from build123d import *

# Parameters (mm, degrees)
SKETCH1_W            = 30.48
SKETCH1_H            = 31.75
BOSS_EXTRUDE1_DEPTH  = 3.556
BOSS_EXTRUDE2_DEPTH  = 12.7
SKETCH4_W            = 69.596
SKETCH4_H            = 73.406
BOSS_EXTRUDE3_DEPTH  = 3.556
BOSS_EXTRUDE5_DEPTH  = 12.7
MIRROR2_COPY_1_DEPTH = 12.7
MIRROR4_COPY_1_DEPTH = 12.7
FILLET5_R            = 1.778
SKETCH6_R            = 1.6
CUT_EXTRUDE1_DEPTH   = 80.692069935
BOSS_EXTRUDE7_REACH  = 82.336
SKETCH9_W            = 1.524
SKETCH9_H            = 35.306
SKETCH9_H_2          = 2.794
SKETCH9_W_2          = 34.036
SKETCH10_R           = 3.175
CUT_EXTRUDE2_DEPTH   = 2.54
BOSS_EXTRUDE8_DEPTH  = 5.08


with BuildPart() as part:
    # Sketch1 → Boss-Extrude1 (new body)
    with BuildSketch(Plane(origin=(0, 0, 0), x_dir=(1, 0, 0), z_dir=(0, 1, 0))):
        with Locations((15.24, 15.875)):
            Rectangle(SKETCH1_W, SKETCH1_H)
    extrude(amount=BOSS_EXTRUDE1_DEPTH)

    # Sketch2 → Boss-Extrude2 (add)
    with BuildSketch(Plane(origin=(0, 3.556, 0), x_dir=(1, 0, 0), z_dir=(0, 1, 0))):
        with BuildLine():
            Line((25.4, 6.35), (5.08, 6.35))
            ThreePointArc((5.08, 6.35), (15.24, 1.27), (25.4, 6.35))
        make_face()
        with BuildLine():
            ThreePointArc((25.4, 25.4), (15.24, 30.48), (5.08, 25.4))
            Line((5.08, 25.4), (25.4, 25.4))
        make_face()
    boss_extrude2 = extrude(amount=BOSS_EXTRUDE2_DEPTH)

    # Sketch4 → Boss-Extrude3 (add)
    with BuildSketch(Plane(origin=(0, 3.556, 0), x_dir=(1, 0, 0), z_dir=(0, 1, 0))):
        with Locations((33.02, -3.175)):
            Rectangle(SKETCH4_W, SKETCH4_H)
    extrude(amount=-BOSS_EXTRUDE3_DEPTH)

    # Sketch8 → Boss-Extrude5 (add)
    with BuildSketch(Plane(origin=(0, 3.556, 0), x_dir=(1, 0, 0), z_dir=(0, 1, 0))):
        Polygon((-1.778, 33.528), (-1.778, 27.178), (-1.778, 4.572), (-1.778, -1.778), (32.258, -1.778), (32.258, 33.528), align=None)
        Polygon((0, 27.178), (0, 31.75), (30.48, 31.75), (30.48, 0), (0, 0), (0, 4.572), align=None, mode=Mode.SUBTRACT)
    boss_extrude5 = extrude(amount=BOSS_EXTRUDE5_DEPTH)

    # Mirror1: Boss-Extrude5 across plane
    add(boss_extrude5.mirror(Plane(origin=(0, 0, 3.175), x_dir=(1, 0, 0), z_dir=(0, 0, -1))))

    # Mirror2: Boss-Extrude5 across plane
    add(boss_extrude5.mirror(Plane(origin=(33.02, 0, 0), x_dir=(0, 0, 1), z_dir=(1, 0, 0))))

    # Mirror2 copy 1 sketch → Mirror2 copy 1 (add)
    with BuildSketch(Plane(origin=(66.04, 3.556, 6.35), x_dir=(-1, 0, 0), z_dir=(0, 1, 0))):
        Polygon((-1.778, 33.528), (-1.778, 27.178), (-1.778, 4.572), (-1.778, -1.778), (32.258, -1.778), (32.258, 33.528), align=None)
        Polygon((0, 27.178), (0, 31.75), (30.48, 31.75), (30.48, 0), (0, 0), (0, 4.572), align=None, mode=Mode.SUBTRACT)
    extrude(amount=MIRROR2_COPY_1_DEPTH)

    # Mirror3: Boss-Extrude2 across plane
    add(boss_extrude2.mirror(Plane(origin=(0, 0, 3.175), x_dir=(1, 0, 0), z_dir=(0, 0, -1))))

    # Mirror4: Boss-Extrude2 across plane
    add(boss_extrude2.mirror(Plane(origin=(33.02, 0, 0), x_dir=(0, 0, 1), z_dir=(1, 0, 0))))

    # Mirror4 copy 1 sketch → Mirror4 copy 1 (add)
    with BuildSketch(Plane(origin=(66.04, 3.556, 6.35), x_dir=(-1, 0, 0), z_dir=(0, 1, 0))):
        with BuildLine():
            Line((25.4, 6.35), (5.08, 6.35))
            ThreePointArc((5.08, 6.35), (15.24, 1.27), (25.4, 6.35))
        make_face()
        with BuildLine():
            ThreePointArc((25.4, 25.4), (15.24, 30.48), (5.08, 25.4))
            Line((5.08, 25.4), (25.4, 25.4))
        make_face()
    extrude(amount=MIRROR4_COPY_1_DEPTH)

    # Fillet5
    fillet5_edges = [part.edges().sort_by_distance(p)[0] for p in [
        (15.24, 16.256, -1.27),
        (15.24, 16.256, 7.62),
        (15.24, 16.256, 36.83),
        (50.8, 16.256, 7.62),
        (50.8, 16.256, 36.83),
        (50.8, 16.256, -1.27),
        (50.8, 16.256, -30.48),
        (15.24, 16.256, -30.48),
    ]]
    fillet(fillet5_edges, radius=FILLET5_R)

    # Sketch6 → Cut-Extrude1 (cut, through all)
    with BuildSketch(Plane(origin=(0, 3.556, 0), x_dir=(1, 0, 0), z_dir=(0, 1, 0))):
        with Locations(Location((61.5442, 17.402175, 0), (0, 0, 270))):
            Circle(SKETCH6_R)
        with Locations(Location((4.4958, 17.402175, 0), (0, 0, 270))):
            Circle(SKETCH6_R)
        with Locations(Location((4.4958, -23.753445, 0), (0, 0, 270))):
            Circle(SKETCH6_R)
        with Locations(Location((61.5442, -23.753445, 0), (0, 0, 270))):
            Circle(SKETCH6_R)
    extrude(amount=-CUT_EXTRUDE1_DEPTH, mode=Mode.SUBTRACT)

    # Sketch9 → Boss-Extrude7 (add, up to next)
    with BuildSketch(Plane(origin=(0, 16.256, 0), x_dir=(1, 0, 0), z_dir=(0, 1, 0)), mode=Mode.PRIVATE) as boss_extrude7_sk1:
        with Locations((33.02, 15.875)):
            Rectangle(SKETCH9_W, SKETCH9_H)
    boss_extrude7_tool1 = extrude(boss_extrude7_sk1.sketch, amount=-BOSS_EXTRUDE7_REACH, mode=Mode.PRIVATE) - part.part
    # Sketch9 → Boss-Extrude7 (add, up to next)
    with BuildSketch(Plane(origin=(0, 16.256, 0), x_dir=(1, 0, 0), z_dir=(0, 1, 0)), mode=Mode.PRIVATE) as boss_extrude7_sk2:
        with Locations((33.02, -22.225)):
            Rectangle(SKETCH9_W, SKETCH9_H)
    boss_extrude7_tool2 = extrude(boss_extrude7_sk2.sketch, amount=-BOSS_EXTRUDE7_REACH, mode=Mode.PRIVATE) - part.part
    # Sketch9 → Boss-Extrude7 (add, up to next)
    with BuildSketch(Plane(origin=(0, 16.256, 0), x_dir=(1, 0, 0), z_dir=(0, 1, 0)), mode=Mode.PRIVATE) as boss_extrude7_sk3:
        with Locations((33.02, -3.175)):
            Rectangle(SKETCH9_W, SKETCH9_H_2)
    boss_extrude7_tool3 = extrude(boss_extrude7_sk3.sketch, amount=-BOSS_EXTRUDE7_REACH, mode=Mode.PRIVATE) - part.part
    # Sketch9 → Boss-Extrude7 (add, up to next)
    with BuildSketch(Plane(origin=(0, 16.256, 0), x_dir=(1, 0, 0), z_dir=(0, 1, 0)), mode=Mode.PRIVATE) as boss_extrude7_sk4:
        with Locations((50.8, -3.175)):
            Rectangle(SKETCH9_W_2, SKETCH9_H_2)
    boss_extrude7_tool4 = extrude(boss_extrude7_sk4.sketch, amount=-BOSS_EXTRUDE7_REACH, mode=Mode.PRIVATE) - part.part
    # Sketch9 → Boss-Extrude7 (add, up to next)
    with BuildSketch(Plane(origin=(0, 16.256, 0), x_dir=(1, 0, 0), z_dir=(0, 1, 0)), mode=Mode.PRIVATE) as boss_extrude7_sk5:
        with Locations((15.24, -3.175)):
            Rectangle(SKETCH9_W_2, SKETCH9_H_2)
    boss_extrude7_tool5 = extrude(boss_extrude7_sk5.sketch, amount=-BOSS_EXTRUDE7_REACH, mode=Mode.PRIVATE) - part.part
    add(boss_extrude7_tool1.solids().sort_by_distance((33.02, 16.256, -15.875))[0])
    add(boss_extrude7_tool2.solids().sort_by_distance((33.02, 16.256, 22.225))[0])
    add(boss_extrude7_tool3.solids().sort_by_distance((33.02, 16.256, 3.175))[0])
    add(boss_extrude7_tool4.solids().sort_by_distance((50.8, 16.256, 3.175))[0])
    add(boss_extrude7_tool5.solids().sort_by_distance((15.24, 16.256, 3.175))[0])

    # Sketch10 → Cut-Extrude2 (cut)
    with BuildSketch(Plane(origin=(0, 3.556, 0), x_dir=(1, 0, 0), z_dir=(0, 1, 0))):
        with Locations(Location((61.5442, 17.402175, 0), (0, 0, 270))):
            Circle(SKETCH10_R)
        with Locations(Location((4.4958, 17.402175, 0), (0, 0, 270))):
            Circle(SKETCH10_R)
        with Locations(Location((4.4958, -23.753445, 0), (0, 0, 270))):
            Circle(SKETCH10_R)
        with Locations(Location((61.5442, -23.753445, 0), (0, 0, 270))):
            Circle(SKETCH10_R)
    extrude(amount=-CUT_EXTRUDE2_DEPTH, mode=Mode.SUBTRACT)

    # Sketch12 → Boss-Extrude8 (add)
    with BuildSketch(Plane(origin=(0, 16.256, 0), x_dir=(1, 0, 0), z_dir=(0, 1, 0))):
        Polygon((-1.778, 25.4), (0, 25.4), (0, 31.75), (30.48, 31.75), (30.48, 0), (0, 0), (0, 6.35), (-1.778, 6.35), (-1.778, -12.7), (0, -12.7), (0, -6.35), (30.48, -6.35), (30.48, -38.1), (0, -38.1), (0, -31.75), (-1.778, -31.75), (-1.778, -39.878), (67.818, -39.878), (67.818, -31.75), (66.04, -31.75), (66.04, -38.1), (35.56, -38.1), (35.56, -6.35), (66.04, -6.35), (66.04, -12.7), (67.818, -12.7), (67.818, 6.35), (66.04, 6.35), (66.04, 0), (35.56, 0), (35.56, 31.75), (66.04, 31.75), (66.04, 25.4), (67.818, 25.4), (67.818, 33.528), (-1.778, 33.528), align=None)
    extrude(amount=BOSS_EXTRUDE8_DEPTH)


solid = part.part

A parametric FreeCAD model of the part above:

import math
import FreeCAD as App
import Part
import Sketcher
from FreeCAD import Vector
Q = App.Units.Quantity


def edges_at(feature, points):
    """Names of the edges that pass closest to the given points."""
    edges = feature.Shape.Edges
    near = lambda p: min(range(len(edges)), key=lambda i: edges[i].distToShape(Part.Vertex(*p))[0])
    return sorted({f"Edge{near(p) + 1}" for p in points})

doc = App.newDocument("Part")
body = doc.addObject("PartDesign::Body", "Body")

sketch1 = doc.addObject("Sketcher::SketchObject", "Sketch")
body.addObject(sketch1)
sketch1.AttachmentSupport = (doc.XZ_Plane, [""])
sketch1.MapMode = "FlatFace"
sketch1.addGeometry([
    Part.LineSegment(Vector(0, -32, 0), Vector(0, 0, 0)),
    Part.LineSegment(Vector(0, 0, 0), Vector(30, 0, 0)),
    Part.LineSegment(Vector(30, 0, 0), Vector(30, -32, 0)),
    Part.LineSegment(Vector(30, -32, 0), Vector(0, -32, 0)),
], False)
sketch1.addConstraint([
    Sketcher.Constraint("Coincident", 0, 2, 1, 1),
    Sketcher.Constraint("Coincident", 1, 2, 2, 1),
    Sketcher.Constraint("Coincident", 2, 2, 3, 1),
    Sketcher.Constraint("Coincident", 3, 2, 0, 1),
    Sketcher.Constraint("Vertical", 0),
    Sketcher.Constraint("Horizontal", 1),
    Sketcher.Constraint("Vertical", 2),
    Sketcher.Constraint("Horizontal", 3),
    Sketcher.Constraint("Coincident", 0, 2, -1, 1),
    Sketcher.Constraint("DistanceX", 1, 1, 1, 2, Q("1.2 in")),
    Sketcher.Constraint("DistanceY", 0, 1, 0, 2, Q("1.25 in")),
])
pad1 = doc.addObject("PartDesign::Pad", "Pad")
body.addObject(pad1)
pad1.Profile = sketch1
pad1.Length = Q("0.14 in")
pad1.Reversed = True

sketch2 = doc.addObject("Sketcher::SketchObject", "Sketch001")
body.addObject(sketch2)
sketch2.AttachmentSupport = (doc.XZ_Plane, [""])
sketch2.MapMode = "FlatFace"
sketch2.AttachmentOffset = App.Placement(Vector(0, 0, -0.14 * 25.4), App.Rotation())
sketch2.addGeometry([
    Part.LineSegment(Vector(25, -6, 0), Vector(5, -6, 0)),
    Part.ArcOfCircle(Part.Circle(Vector(15, -14, 0), Vector(0, 0, 1), 13), math.radians(37), math.radians(143)),
    Part.ArcOfCircle(Part.Circle(Vector(15, -18, 0), Vector(0, 0, 1), 13), math.radians(-143), math.radians(-37)),
    Part.LineSegment(Vector(5, -25, 0), Vector(25, -25, 0)),
], False)
sketch2.addConstraint([
    Sketcher.Constraint("Coincident", 0, 1, 1, 1),
    Sketcher.Constraint("Coincident", 1, 2, 0, 2),
    Sketcher.Constraint("Coincident", 2, 1, 3, 1),
    Sketcher.Constraint("Coincident", 3, 2, 2, 2),
    Sketcher.Constraint("Horizontal", 0),
    Sketcher.Constraint("Horizontal", 3),
    Sketcher.Constraint("Equal", 1, 2),
    Sketcher.Constraint("Vertical", 1, 3, 2, 3),
    Sketcher.Constraint("Vertical", 1, 2, 2, 1),
    Sketcher.Constraint("Radius", 1, Q("0.5 in")),
    Sketcher.Constraint("DistanceX", 0, 2, 0, 1, Q("0.8 in")),
    Sketcher.Constraint("DistanceX", -1, 1, 0, 1, Q("1 in")),
    Sketcher.Constraint("DistanceY", 2, 1, -1, 1, Q("1 in")),
    Sketcher.Constraint("DistanceY", 1, 3, -1, 1, Q("0.55 in")),
])
pad2 = doc.addObject("PartDesign::Pad", "Pad001")
body.addObject(pad2)
pad2.Profile = sketch2
pad2.Length = Q("0.5 in")
pad2.Reversed = True

sketch3 = doc.addObject("Sketcher::SketchObject", "Sketch002")
body.addObject(sketch3)
sketch3.AttachmentSupport = (doc.XZ_Plane, [""])
sketch3.MapMode = "FlatFace"
sketch3.AttachmentOffset = App.Placement(Vector(0, 0, -0.14 * 25.4), App.Rotation())
sketch3.addGeometry([
    Part.LineSegment(Vector(-2, -34, 0), Vector(-2, 40, 0)),
    Part.LineSegment(Vector(-2, 40, 0), Vector(68, 40, 0)),
    Part.LineSegment(Vector(68, 40, 0), Vector(68, -34, 0)),
    Part.LineSegment(Vector(68, -34, 0), Vector(-2, -34, 0)),
], False)
sketch3.addConstraint([
    Sketcher.Constraint("Coincident", 0, 2, 1, 1),
    Sketcher.Constraint("Coincident", 1, 2, 2, 1),
    Sketcher.Constraint("Coincident", 2, 2, 3, 1),
    Sketcher.Constraint("Coincident", 3, 2, 0, 1),
    Sketcher.Constraint("Vertical", 0),
    Sketcher.Constraint("Horizontal", 1),
    Sketcher.Constraint("Vertical", 2),
    Sketcher.Constraint("Horizontal", 3),
    Sketcher.Constraint("DistanceX", 1, 1, 1, 2, Q("2.74 in")),
    Sketcher.Constraint("DistanceY", 0, 1, 0, 2, Q("2.89 in")),
    Sketcher.Constraint("DistanceX", 0, 2, -1, 1, Q("0.07 in")),
    Sketcher.Constraint("DistanceY", -1, 1, 0, 2, Q("1.57 in")),
])
pad3 = doc.addObject("PartDesign::Pad", "Pad002")
body.addObject(pad3)
pad3.Profile = sketch3
pad3.Length = Q("0.14 in")

sketch4 = doc.addObject("Sketcher::SketchObject", "Sketch003")
body.addObject(sketch4)
sketch4.AttachmentSupport = (doc.XZ_Plane, [""])
sketch4.MapMode = "FlatFace"
sketch4.AttachmentOffset = App.Placement(Vector(0, 0, -0.14 * 25.4), App.Rotation())
sketch4.addGeometry([
    Part.LineSegment(Vector(-2, -34, 0), Vector(-2, 2, 0)),
    Part.LineSegment(Vector(-2, 2, 0), Vector(32, 2, 0)),
    Part.LineSegment(Vector(32, 2, 0), Vector(32, -34, 0)),
    Part.LineSegment(Vector(32, -34, 0), Vector(-2, -34, 0)),
    Part.LineSegment(Vector(0, 0, 0), Vector(0, -32, 0)),
    Part.LineSegment(Vector(0, -32, 0), Vector(30, -32, 0)),
    Part.LineSegment(Vector(30, -32, 0), Vector(30, 0, 0)),
    Part.LineSegment(Vector(30, 0, 0), Vector(0, 0, 0)),
], False)
sketch4.addConstraint([
    Sketcher.Constraint("Coincident", 0, 2, 1, 1),
    Sketcher.Constraint("Coincident", 1, 2, 2, 1),
    Sketcher.Constraint("Coincident", 2, 2, 3, 1),
    Sketcher.Constraint("Coincident", 3, 2, 0, 1),
    Sketcher.Constraint("Coincident", 4, 2, 5, 1),
    Sketcher.Constraint("Coincident", 5, 2, 6, 1),
    Sketcher.Constraint("Coincident", 6, 2, 7, 1),
    Sketcher.Constraint("Coincident", 7, 2, 4, 1),
    Sketcher.Constraint("Vertical", 0),
    Sketcher.Constraint("Horizontal", 1),
    Sketcher.Constraint("Vertical", 2),
    Sketcher.Constraint("Horizontal", 3),
    Sketcher.Constraint("Vertical", 4),
    Sketcher.Constraint("Horizontal", 5),
    Sketcher.Constraint("Vertical", 6),
    Sketcher.Constraint("Horizontal", 7),
    Sketcher.Constraint("Coincident", 7, 2, -1, 1),
    Sketcher.Constraint("DistanceX", 5, 1, 5, 2, Q("1.2 in")),
    Sketcher.Constraint("DistanceX", 1, 1, 1, 2, Q("1.34 in")),
    Sketcher.Constraint("DistanceY", 0, 1, 0, 2, Q("1.39 in")),
    Sketcher.Constraint("DistanceY", 4, 2, 4, 1, Q("1.25 in")),
    Sketcher.Constraint("DistanceX", 0, 2, -1, 1, Q("0.07 in")),
    Sketcher.Constraint("DistanceY", -1, 1, 0, 2, Q("0.07 in")),
])
pad4 = doc.addObject("PartDesign::Pad", "Pad003")
body.addObject(pad4)
pad4.Profile = sketch4
pad4.Length = Q("0.5 in")
pad4.Reversed = True
doc.recompute()

datumplane = doc.addObject("PartDesign::Plane", "DatumPlane")
body.addObject(datumplane)
datumplane.AttachmentSupport = (doc.XY_Plane, [""])
datumplane.MapMode = "FlatFace"
datumplane.AttachmentOffset = App.Placement(Vector(0, 0, 0.125 * 25.4), App.Rotation())
mirrored = doc.addObject("PartDesign::Mirrored", "Mirrored")
body.addObject(mirrored)
mirrored.Originals = [pad4]
mirrored.MirrorPlane = (datumplane, [""])
body.Tip = mirrored
doc.recompute()

datumplane2 = doc.addObject("PartDesign::Plane", "DatumPlane001")
body.addObject(datumplane2)
datumplane2.AttachmentSupport = (doc.YZ_Plane, [""])
datumplane2.MapMode = "FlatFace"
datumplane2.AttachmentOffset = App.Placement(Vector(0, 0, 1.3 * 25.4), App.Rotation())
mirrored2 = doc.addObject("PartDesign::Mirrored", "Mirrored001")
body.addObject(mirrored2)
mirrored2.Originals = [pad4]
mirrored2.MirrorPlane = (datumplane2, [""])
body.Tip = mirrored2

sketch5 = doc.addObject("Sketcher::SketchObject", "Sketch004")
body.addObject(sketch5)
sketch5.AttachmentSupport = (doc.XZ_Plane, [""])
sketch5.MapMode = "FlatFace"
sketch5.AttachmentOffset = App.Placement(Vector(0, 0, -0.14 * 25.4), App.Rotation())
sketch5.addGeometry([
    Part.LineSegment(Vector(68, 40, 0), Vector(68, 5, 0)),
    Part.LineSegment(Vector(68, 5, 0), Vector(34, 5, 0)),
    Part.LineSegment(Vector(34, 5, 0), Vector(34, 40, 0)),
    Part.LineSegment(Vector(34, 40, 0), Vector(68, 40, 0)),
    Part.LineSegment(Vector(66, 6, 0), Vector(66, 38, 0)),
    Part.LineSegment(Vector(66, 38, 0), Vector(36, 38, 0)),
    Part.LineSegment(Vector(36, 38, 0), Vector(36, 6, 0)),
    Part.LineSegment(Vector(36, 6, 0), Vector(66, 6, 0)),
], False)
sketch5.addConstraint([
    Sketcher.Constraint("Coincident", 0, 2, 1, 1),
    Sketcher.Constraint("Coincident", 1, 2, 2, 1),
    Sketcher.Constraint("Coincident", 2, 2, 3, 1),
    Sketcher.Constraint("Coincident", 3, 2, 0, 1),
    Sketcher.Constraint("Coincident", 4, 2, 5, 1),
    Sketcher.Constraint("Coincident", 5, 2, 6, 1),
    Sketcher.Constraint("Coincident", 6, 2, 7, 1),
    Sketcher.Constraint("Coincident", 7, 2, 4, 1),
    Sketcher.Constraint("Vertical", 0),
    Sketcher.Constraint("Horizontal", 1),
    Sketcher.Constraint("Vertical", 2),
    Sketcher.Constraint("Horizontal", 3),
    Sketcher.Constraint("Vertical", 4),
    Sketcher.Constraint("Horizontal", 5),
    Sketcher.Constraint("Vertical", 6),
    Sketcher.Constraint("Horizontal", 7),
    Sketcher.Constraint("DistanceX", 5, 2, 5, 1, Q("1.2 in")),
    Sketcher.Constraint("DistanceX", 1, 2, 1, 1, Q("1.34 in")),
    Sketcher.Constraint("DistanceY", 0, 2, 0, 1, Q("1.39 in")),
    Sketcher.Constraint("DistanceY", 4, 1, 4, 2, Q("1.25 in")),
    Sketcher.Constraint("DistanceX", -1, 1, 4, 2, Q("2.6 in")),
    Sketcher.Constraint("DistanceY", -1, 1, 4, 2, Q("1.5 in")),
    Sketcher.Constraint("DistanceX", -1, 1, 0, 2, Q("2.67 in")),
    Sketcher.Constraint("DistanceY", -1, 1, 0, 2, Q("0.18 in")),
])
pad5 = doc.addObject("PartDesign::Pad", "Pad004")
body.addObject(pad5)
pad5.Profile = sketch5
pad5.Length = Q("0.5 in")
pad5.Reversed = True
doc.recompute()

datumplane3 = doc.addObject("PartDesign::Plane", "DatumPlane002")
body.addObject(datumplane3)
datumplane3.AttachmentSupport = (doc.XY_Plane, [""])
datumplane3.MapMode = "FlatFace"
datumplane3.AttachmentOffset = App.Placement(Vector(0, 0, 0.125 * 25.4), App.Rotation())
mirrored3 = doc.addObject("PartDesign::Mirrored", "Mirrored002")
body.addObject(mirrored3)
mirrored3.Originals = [pad2]
mirrored3.MirrorPlane = (datumplane3, [""])
body.Tip = mirrored3
doc.recompute()

datumplane4 = doc.addObject("PartDesign::Plane", "DatumPlane003")
body.addObject(datumplane4)
datumplane4.AttachmentSupport = (doc.YZ_Plane, [""])
datumplane4.MapMode = "FlatFace"
datumplane4.AttachmentOffset = App.Placement(Vector(0, 0, 1.3 * 25.4), App.Rotation())
mirrored4 = doc.addObject("PartDesign::Mirrored", "Mirrored003")
body.addObject(mirrored4)
mirrored4.Originals = [pad2]
mirrored4.MirrorPlane = (datumplane4, [""])
body.Tip = mirrored4

sketch6 = doc.addObject("Sketcher::SketchObject", "Sketch005")
body.addObject(sketch6)
sketch6.AttachmentSupport = (doc.XZ_Plane, [""])
sketch6.MapMode = "FlatFace"
sketch6.AttachmentOffset = App.Placement(Vector(0, 0, -0.14 * 25.4), App.Rotation())
sketch6.addGeometry([
    Part.LineSegment(Vector(41, 13, 0), Vector(61, 13, 0)),
    Part.ArcOfCircle(Part.Circle(Vector(51, 20, 0), Vector(0, 0, 1), 13), math.radians(-143), math.radians(-37)),
    Part.ArcOfCircle(Part.Circle(Vector(51, 24, 0), Vector(0, 0, 1), 13), math.radians(37), math.radians(143)),
    Part.LineSegment(Vector(61, 32, 0), Vector(41, 32, 0)),
], False)
sketch6.addConstraint([
    Sketcher.Constraint("Coincident", 0, 1, 1, 1),
    Sketcher.Constraint("Coincident", 1, 2, 0, 2),
    Sketcher.Constraint("Coincident", 2, 1, 3, 1),
    Sketcher.Constraint("Coincident", 3, 2, 2, 2),
    Sketcher.Constraint("Horizontal", 0),
    Sketcher.Constraint("Horizontal", 3),
    Sketcher.Constraint("Equal", 1, 2),
    Sketcher.Constraint("Vertical", 1, 3, 2, 3),
    Sketcher.Constraint("Vertical", 1, 2, 2, 1),
    Sketcher.Constraint("Radius", 1, Q("0.5 in")),
    Sketcher.Constraint("DistanceX", 0, 1, 0, 2, Q("0.8 in")),
    Sketcher.Constraint("DistanceX", -1, 1, 1, 3, Q("2 in")),
    Sketcher.Constraint("DistanceY", -1, 1, 1, 3, Q("0.8 in")),
    Sketcher.Constraint("DistanceY", -1, 1, 2, 3, Q("0.95 in")),
])
pad6 = doc.addObject("PartDesign::Pad", "Pad005")
body.addObject(pad6)
pad6.Profile = sketch6
pad6.Length = Q("0.5 in")
pad6.Reversed = True
doc.recompute()

fillet = doc.addObject("PartDesign::Fillet", "Fillet")
body.addObject(fillet)
fillet.Base = (pad6, edges_at(pad6, [
    (15.24, 16.256, -1.27),
    (15.24, 16.256, 7.62),
    (15.24, 16.256, 36.83),
    (50.8, 16.256, 7.62),
    (50.8, 16.256, 36.83),
    (50.8, 16.256, -1.27),
    (50.8, 16.256, -30.48),
    (15.24, 16.256, -30.48),
]))
fillet.Radius = Q("0.07 in")

sketch7 = doc.addObject("Sketcher::SketchObject", "Sketch006")
body.addObject(sketch7)
sketch7.AttachmentSupport = (doc.XZ_Plane, [""])
sketch7.MapMode = "FlatFace"
sketch7.AttachmentOffset = App.Placement(Vector(0, 0, -0.14 * 25.4), App.Rotation())
sketch7.addGeometry([
    Part.Circle(Vector(61.5, -17.4, 0), Vector(0, 0, 1), 1.6),
    Part.Circle(Vector(4.5, -17.4, 0), Vector(0, 0, 1), 1.6),
    Part.Circle(Vector(4.5, 23.8, 0), Vector(0, 0, 1), 1.6),
    Part.Circle(Vector(61.5, 23.8, 0), Vector(0, 0, 1), 1.6),
], False)
sketch7.addConstraint([
    Sketcher.Constraint("Equal", 0, 1),
    Sketcher.Constraint("Equal", 1, 2),
    Sketcher.Constraint("Equal", 2, 3),
    Sketcher.Constraint("Horizontal", 0, 3, 1, 3),
    Sketcher.Constraint("Horizontal", 2, 3, 3, 3),
    Sketcher.Constraint("Vertical", 1, 3, 2, 3),
    Sketcher.Constraint("Vertical", 0, 3, 3, 3),
    Sketcher.Constraint("Diameter", 0, Q("3.2 mm")),
    Sketcher.Constraint("DistanceX", -1, 1, 0, 3, Q("2.423 in")),
    Sketcher.Constraint("DistanceX", -1, 1, 1, 3, Q("0.177 in")),
    Sketcher.Constraint("DistanceY", 1, 3, 2, 3, Q("1.6203 in")),
    Sketcher.Constraint("DistanceY", 0, 3, -1, 1, Q("17.402175 mm")),
])
pocket1 = doc.addObject("PartDesign::Pocket", "Pocket")
body.addObject(pocket1)
pocket1.Profile = sketch7
pocket1.Type = "ThroughAll"
pocket1.Reversed = True

sketch8 = doc.addObject("Sketcher::SketchObject", "Sketch007")
body.addObject(sketch8)
sketch8.AttachmentSupport = (doc.XZ_Plane, [""])
sketch8.MapMode = "FlatFace"
sketch8.AttachmentOffset = App.Placement(Vector(0, 0, -0.64 * 25.4), App.Rotation())
sketch8.addGeometry([
    Part.LineSegment(Vector(32.3, -33.5, 0), Vector(32.3, 1.8, 0)),
    Part.LineSegment(Vector(32.3, 1.8, 0), Vector(33.8, 1.8, 0)),
    Part.LineSegment(Vector(33.8, 1.8, 0), Vector(33.8, -33.5, 0)),
    Part.LineSegment(Vector(33.8, -33.5, 0), Vector(32.3, -33.5, 0)),
], False)
sketch8.addConstraint([
    Sketcher.Constraint("Coincident", 0, 2, 1, 1),
    Sketcher.Constraint("Coincident", 1, 2, 2, 1),
    Sketcher.Constraint("Coincident", 2, 2, 3, 1),
    Sketcher.Constraint("Coincident", 3, 2, 0, 1),
    Sketcher.Constraint("Vertical", 0),
    Sketcher.Constraint("Horizontal", 1),
    Sketcher.Constraint("Vertical", 2),
    Sketcher.Constraint("Horizontal", 3),
    Sketcher.Constraint("DistanceX", 1, 1, 1, 2, Q("0.06 in")),
    Sketcher.Constraint("DistanceY", 0, 1, 0, 2, Q("1.39 in")),
    Sketcher.Constraint("DistanceX", -1, 1, 0, 2, Q("1.27 in")),
    Sketcher.Constraint("DistanceY", -1, 1, 0, 2, Q("0.07 in")),
])
pad7 = doc.addObject("PartDesign::Pad", "Pad006")
body.addObject(pad7)
pad7.Profile = sketch8
pad7.Type = "UpToFirst"

sketch9 = doc.addObject("Sketcher::SketchObject", "Sketch008")
body.addObject(sketch9)
sketch9.AttachmentSupport = (doc.XZ_Plane, [""])
sketch9.MapMode = "FlatFace"
sketch9.AttachmentOffset = App.Placement(Vector(0, 0, -0.64 * 25.4), App.Rotation())
sketch9.addGeometry([
    Part.LineSegment(Vector(32.3, 4.6, 0), Vector(32.3, 39.9, 0)),
    Part.LineSegment(Vector(32.3, 39.9, 0), Vector(33.8, 39.9, 0)),
    Part.LineSegment(Vector(33.8, 39.9, 0), Vector(33.8, 4.6, 0)),
    Part.LineSegment(Vector(33.8, 4.6, 0), Vector(32.3, 4.6, 0)),
], False)
sketch9.addConstraint([
    Sketcher.Constraint("Coincident", 0, 2, 1, 1),
    Sketcher.Constraint("Coincident", 1, 2, 2, 1),
    Sketcher.Constraint("Coincident", 2, 2, 3, 1),
    Sketcher.Constraint("Coincident", 3, 2, 0, 1),
    Sketcher.Constraint("Vertical", 0),
    Sketcher.Constraint("Horizontal", 1),
    Sketcher.Constraint("Vertical", 2),
    Sketcher.Constraint("Horizontal", 3),
    Sketcher.Constraint("DistanceX", 1, 1, 1, 2, Q("0.06 in")),
    Sketcher.Constraint("DistanceY", 0, 1, 0, 2, Q("1.39 in")),
    Sketcher.Constraint("DistanceX", -1, 1, 0, 2, Q("1.27 in")),
    Sketcher.Constraint("DistanceY", -1, 1, 0, 2, Q("1.57 in")),
])
pad8 = doc.addObject("PartDesign::Pad", "Pad007")
body.addObject(pad8)
pad8.Profile = sketch9
pad8.Type = "UpToFirst"

sketch10 = doc.addObject("Sketcher::SketchObject", "Sketch009")
body.addObject(sketch10)
sketch10.AttachmentSupport = (doc.XZ_Plane, [""])
sketch10.MapMode = "FlatFace"
sketch10.AttachmentOffset = App.Placement(Vector(0, 0, -0.64 * 25.4), App.Rotation())
sketch10.addGeometry([
    Part.LineSegment(Vector(32.3, 1.8, 0), Vector(32.3, 4.6, 0)),
    Part.LineSegment(Vector(32.3, 4.6, 0), Vector(33.8, 4.6, 0)),
    Part.LineSegment(Vector(33.8, 4.6, 0), Vector(33.8, 1.8, 0)),
    Part.LineSegment(Vector(33.8, 1.8, 0), Vector(32.3, 1.8, 0)),
], False)
sketch10.addConstraint([
    Sketcher.Constraint("Coincident", 0, 2, 1, 1),
    Sketcher.Constraint("Coincident", 1, 2, 2, 1),
    Sketcher.Constraint("Coincident", 2, 2, 3, 1),
    Sketcher.Constraint("Coincident", 3, 2, 0, 1),
    Sketcher.Constraint("Vertical", 0),
    Sketcher.Constraint("Horizontal", 1),
    Sketcher.Constraint("Vertical", 2),
    Sketcher.Constraint("Horizontal", 3),
    Sketcher.Constraint("DistanceX", 1, 1, 1, 2, Q("0.06 in")),
    Sketcher.Constraint("DistanceY", 0, 1, 0, 2, Q("0.11 in")),
    Sketcher.Constraint("DistanceX", -1, 1, 0, 2, Q("1.27 in")),
    Sketcher.Constraint("DistanceY", -1, 1, 0, 2, Q("0.18 in")),
])
pad9 = doc.addObject("PartDesign::Pad", "Pad008")
body.addObject(pad9)
pad9.Profile = sketch10
pad9.Type = "UpToFirst"

sketch11 = doc.addObject("Sketcher::SketchObject", "Sketch010")
body.addObject(sketch11)
sketch11.AttachmentSupport = (doc.XZ_Plane, [""])
sketch11.MapMode = "FlatFace"
sketch11.AttachmentOffset = App.Placement(Vector(0, 0, -0.64 * 25.4), App.Rotation())
sketch11.addGeometry([
    Part.LineSegment(Vector(33.8, 1.8, 0), Vector(33.8, 4.6, 0)),
    Part.LineSegment(Vector(33.8, 4.6, 0), Vector(67.8, 4.6, 0)),
    Part.LineSegment(Vector(67.8, 4.6, 0), Vector(67.8, 1.8, 0)),
    Part.LineSegment(Vector(67.8, 1.8, 0), Vector(33.8, 1.8, 0)),
], False)
sketch11.addConstraint([
    Sketcher.Constraint("Coincident", 0, 2, 1, 1),
    Sketcher.Constraint("Coincident", 1, 2, 2, 1),
    Sketcher.Constraint("Coincident", 2, 2, 3, 1),
    Sketcher.Constraint("Coincident", 3, 2, 0, 1),
    Sketcher.Constraint("Vertical", 0),
    Sketcher.Constraint("Horizontal", 1),
    Sketcher.Constraint("Vertical", 2),
    Sketcher.Constraint("Horizontal", 3),
    Sketcher.Constraint("DistanceX", 1, 1, 1, 2, Q("1.34 in")),
    Sketcher.Constraint("DistanceY", 0, 1, 0, 2, Q("0.11 in")),
    Sketcher.Constraint("DistanceX", -1, 1, 0, 2, Q("1.33 in")),
    Sketcher.Constraint("DistanceY", -1, 1, 0, 2, Q("0.18 in")),
])
pad10 = doc.addObject("PartDesign::Pad", "Pad009")
body.addObject(pad10)
pad10.Profile = sketch11
pad10.Type = "UpToFirst"

sketch12 = doc.addObject("Sketcher::SketchObject", "Sketch011")
body.addObject(sketch12)
sketch12.AttachmentSupport = (doc.XZ_Plane, [""])
sketch12.MapMode = "FlatFace"
sketch12.AttachmentOffset = App.Placement(Vector(0, 0, -0.64 * 25.4), App.Rotation())
sketch12.addGeometry([
    Part.LineSegment(Vector(-1.8, 1.8, 0), Vector(-1.8, 4.6, 0)),
    Part.LineSegment(Vector(-1.8, 4.6, 0), Vector(32.3, 4.6, 0)),
    Part.LineSegment(Vector(32.3, 4.6, 0), Vector(32.3, 1.8, 0)),
    Part.LineSegment(Vector(32.3, 1.8, 0), Vector(-1.8, 1.8, 0)),
], False)
sketch12.addConstraint([
    Sketcher.Constraint("Coincident", 0, 2, 1, 1),
    Sketcher.Constraint("Coincident", 1, 2, 2, 1),
    Sketcher.Constraint("Coincident", 2, 2, 3, 1),
    Sketcher.Constraint("Coincident", 3, 2, 0, 1),
    Sketcher.Constraint("Vertical", 0),
    Sketcher.Constraint("Horizontal", 1),
    Sketcher.Constraint("Vertical", 2),
    Sketcher.Constraint("Horizontal", 3),
    Sketcher.Constraint("DistanceX", 1, 1, 1, 2, Q("1.34 in")),
    Sketcher.Constraint("DistanceY", 0, 1, 0, 2, Q("0.11 in")),
    Sketcher.Constraint("DistanceX", 0, 2, -1, 1, Q("0.07 in")),
    Sketcher.Constraint("DistanceY", -1, 1, 0, 2, Q("0.18 in")),
])
pad11 = doc.addObject("PartDesign::Pad", "Pad010")
body.addObject(pad11)
pad11.Profile = sketch12
pad11.Type = "UpToFirst"

sketch13 = doc.addObject("Sketcher::SketchObject", "Sketch012")
body.addObject(sketch13)
sketch13.AttachmentSupport = (doc.XZ_Plane, [""])
sketch13.MapMode = "FlatFace"
sketch13.AttachmentOffset = App.Placement(Vector(0, 0, -0.14 * 25.4), App.Rotation())
sketch13.addGeometry([
    Part.Circle(Vector(61.5, -17.4, 0), Vector(0, 0, 1), 3.2),
    Part.Circle(Vector(4.5, -17.4, 0), Vector(0, 0, 1), 3.2),
    Part.Circle(Vector(4.5, 23.8, 0), Vector(0, 0, 1), 3.2),
    Part.Circle(Vector(61.5, 23.8, 0), Vector(0, 0, 1), 3.2),
], False)
sketch13.addConstraint([
    Sketcher.Constraint("Equal", 0, 1),
    Sketcher.Constraint("Equal", 1, 2),
    Sketcher.Constraint("Equal", 2, 3),
    Sketcher.Constraint("Horizontal", 0, 3, 1, 3),
    Sketcher.Constraint("Horizontal", 2, 3, 3, 3),
    Sketcher.Constraint("Vertical", 1, 3, 2, 3),
    Sketcher.Constraint("Vertical", 0, 3, 3, 3),
    Sketcher.Constraint("Diameter", 0, Q("0.25 in")),
    Sketcher.Constraint("DistanceX", -1, 1, 0, 3, Q("2.423 in")),
    Sketcher.Constraint("DistanceX", -1, 1, 1, 3, Q("0.177 in")),
    Sketcher.Constraint("DistanceY", 1, 3, 2, 3, Q("1.6203 in")),
    Sketcher.Constraint("DistanceY", 0, 3, -1, 1, Q("17.402175 mm")),
])
pocket2 = doc.addObject("PartDesign::Pocket", "Pocket001")
body.addObject(pocket2)
pocket2.Profile = sketch13
pocket2.Length = Q("0.1 in")
pocket2.Reversed = True

sketch14 = doc.addObject("Sketcher::SketchObject", "Sketch013")
body.addObject(sketch14)
sketch14.AttachmentSupport = (doc.XZ_Plane, [""])
sketch14.MapMode = "FlatFace"
sketch14.AttachmentOffset = App.Placement(Vector(0, 0, -0.64 * 25.4), App.Rotation())
sketch14.addGeometry([
    Part.LineSegment(Vector(-1.8, -25.4, 0), Vector(0, -25.4, 0)),
    Part.LineSegment(Vector(0, -25.4, 0), Vector(0, -31.8, 0)),
    Part.LineSegment(Vector(0, -31.8, 0), Vector(30.5, -31.8, 0)),
    Part.LineSegment(Vector(30.5, -31.8, 0), Vector(30.5, 0, 0)),
    Part.LineSegment(Vector(30.5, 0, 0), Vector(0, 0, 0)),
    Part.LineSegment(Vector(0, 0, 0), Vector(0, -6.3, 0)),
    Part.LineSegment(Vector(0, -6.3, 0), Vector(-1.8, -6.3, 0)),
    Part.LineSegment(Vector(-1.8, -6.3, 0), Vector(-1.8, 12.7, 0)),
    Part.LineSegment(Vector(-1.8, 12.7, 0), Vector(0, 12.7, 0)),
    Part.LineSegment(Vector(0, 12.7, 0), Vector(0, 6.3, 0)),
    Part.LineSegment(Vector(0, 6.3, 0), Vector(30.5, 6.3, 0)),
    Part.LineSegment(Vector(30.5, 6.3, 0), Vector(30.5, 38.1, 0)),
    Part.LineSegment(Vector(30.5, 38.1, 0), Vector(0, 38.1, 0)),
    Part.LineSegment(Vector(0, 38.1, 0), Vector(0, 31.8, 0)),
    Part.LineSegment(Vector(0, 31.8, 0), Vector(-1.8, 31.8, 0)),
    Part.LineSegment(Vector(-1.8, 31.8, 0), Vector(-1.8, 39.9, 0)),
    Part.LineSegment(Vector(-1.8, 39.9, 0), Vector(67.8, 39.9, 0)),
    Part.LineSegment(Vector(67.8, 39.9, 0), Vector(67.8, 31.8, 0)),
    Part.LineSegment(Vector(67.8, 31.8, 0), Vector(66, 31.8, 0)),
    Part.LineSegment(Vector(66, 31.8, 0), Vector(66, 38.1, 0)),
    Part.LineSegment(Vector(66, 38.1, 0), Vector(35.6, 38.1, 0)),
    Part.LineSegment(Vector(35.6, 38.1, 0), Vector(35.6, 6.3, 0)),
    Part.LineSegment(Vector(35.6, 6.3, 0), Vector(66, 6.3, 0)),
    Part.LineSegment(Vector(66, 6.3, 0), Vector(66, 12.7, 0)),
    Part.LineSegment(Vector(66, 12.7, 0), Vector(67.8, 12.7, 0)),
    Part.LineSegment(Vector(67.8, 12.7, 0), Vector(67.8, -6.3, 0)),
    Part.LineSegment(Vector(67.8, -6.3, 0), Vector(66, -6.3, 0)),
    Part.LineSegment(Vector(66, -6.3, 0), Vector(66, 0, 0)),
    Part.LineSegment(Vector(66, 0, 0), Vector(35.6, 0, 0)),
    Part.LineSegment(Vector(35.6, 0, 0), Vector(35.6, -31.8, 0)),
    Part.LineSegment(Vector(35.6, -31.8, 0), Vector(66, -31.8, 0)),
    Part.LineSegment(Vector(66, -31.8, 0), Vector(66, -25.4, 0)),
    Part.LineSegment(Vector(66, -25.4, 0), Vector(67.8, -25.4, 0)),
    Part.LineSegment(Vector(67.8, -25.4, 0), Vector(67.8, -33.5, 0)),
    Part.LineSegment(Vector(67.8, -33.5, 0), Vector(-1.8, -33.5, 0)),
    Part.LineSegment(Vector(-1.8, -33.5, 0), Vector(-1.8, -25.4, 0)),
], False)
sketch14.addConstraint([
    Sketcher.Constraint("Coincident", 0, 2, 1, 1),
    Sketcher.Constraint("Coincident", 1, 2, 2, 1),
    Sketcher.Constraint("Coincident", 2, 2, 3, 1),
    Sketcher.Constraint("Coincident", 3, 2, 4, 1),
    Sketcher.Constraint("Coincident", 4, 2, 5, 1),
    Sketcher.Constraint("Coincident", 5, 2, 6, 1),
    Sketcher.Constraint("Coincident", 6, 2, 7, 1),
    Sketcher.Constraint("Coincident", 7, 2, 8, 1),
    Sketcher.Constraint("Coincident", 8, 2, 9, 1),
    Sketcher.Constraint("Coincident", 9, 2, 10, 1),
    Sketcher.Constraint("Coincident", 10, 2, 11, 1),
    Sketcher.Constraint("Coincident", 11, 2, 12, 1),
    Sketcher.Constraint("Coincident", 12, 2, 13, 1),
    Sketcher.Constraint("Coincident", 13, 2, 14, 1),
    Sketcher.Constraint("Coincident", 14, 2, 15, 1),
    Sketcher.Constraint("Coincident", 15, 2, 16, 1),
    Sketcher.Constraint("Coincident", 16, 2, 17, 1),
    Sketcher.Constraint("Coincident", 17, 2, 18, 1),
    Sketcher.Constraint("Coincident", 18, 2, 19, 1),
    Sketcher.Constraint("Coincident", 19, 2, 20, 1),
    Sketcher.Constraint("Coincident", 20, 2, 21, 1),
    Sketcher.Constraint("Coincident", 21, 2, 22, 1),
    Sketcher.Constraint("Coincident", 22, 2, 23, 1),
    Sketcher.Constraint("Coincident", 23, 2, 24, 1),
    Sketcher.Constraint("Coincident", 24, 2, 25, 1),
    Sketcher.Constraint("Coincident", 25, 2, 26, 1),
    Sketcher.Constraint("Coincident", 26, 2, 27, 1),
    Sketcher.Constraint("Coincident", 27, 2, 28, 1),
    Sketcher.Constraint("Coincident", 28, 2, 29, 1),
    Sketcher.Constraint("Coincident", 29, 2, 30, 1),
    Sketcher.Constraint("Coincident", 30, 2, 31, 1),
    Sketcher.Constraint("Coincident", 31, 2, 32, 1),
    Sketcher.Constraint("Coincident", 32, 2, 33, 1),
    Sketcher.Constraint("Coincident", 33, 2, 34, 1),
    Sketcher.Constraint("Coincident", 34, 2, 35, 1),
    Sketcher.Constraint("Coincident", 35, 2, 0, 1),
    Sketcher.Constraint("Horizontal", 0),
    Sketcher.Constraint("Vertical", 1),
    Sketcher.Constraint("Horizontal", 2),
    Sketcher.Constraint("Vertical", 3),
    Sketcher.Constraint("Horizontal", 4),
    Sketcher.Constraint("Vertical", 5),
    Sketcher.Constraint("Horizontal", 6),
    Sketcher.Constraint("Vertical", 7),
    Sketcher.Constraint("Horizontal", 8),
    Sketcher.Constraint("Vertical", 9),
    Sketcher.Constraint("Horizontal", 10),
    Sketcher.Constraint("Vertical", 11),
    Sketcher.Constraint("Horizontal", 12),
    Sketcher.Constraint("Vertical", 13),
    Sketcher.Constraint("Horizontal", 14),
    Sketcher.Constraint("Vertical", 15),
    Sketcher.Constraint("Horizontal", 16),
    Sketcher.Constraint("Vertical", 17),
    Sketcher.Constraint("Horizontal", 18),
    Sketcher.Constraint("Vertical", 19),
    Sketcher.Constraint("Horizontal", 20),
    Sketcher.Constraint("Vertical", 21),
    Sketcher.Constraint("Horizontal", 22),
    Sketcher.Constraint("Vertical", 23),
    Sketcher.Constraint("Horizontal", 24),
    Sketcher.Constraint("Vertical", 25),
    Sketcher.Constraint("Horizontal", 26),
    Sketcher.Constraint("Vertical", 27),
    Sketcher.Constraint("Horizontal", 28),
    Sketcher.Constraint("Vertical", 29),
    Sketcher.Constraint("Horizontal", 30),
    Sketcher.Constraint("Vertical", 31),
    Sketcher.Constraint("Horizontal", 32),
    Sketcher.Constraint("Vertical", 33),
    Sketcher.Constraint("Horizontal", 34),
    Sketcher.Constraint("Vertical", 35),
    Sketcher.Constraint("Coincident", 4, 2, -1, 1),
    Sketcher.Constraint("Symmetric", 5, 2, 9, 2, -1, 1),
    Sketcher.Constraint("Symmetric", 1, 2, 13, 2, -1, 1),
    Sketcher.Constraint("Symmetric", 22, 2, 26, 2, -1),
    Sketcher.Constraint("Symmetric", 18, 2, 30, 2, -1),
    Sketcher.Constraint("PointOnObject", 0, 2, -2),
    Sketcher.Constraint("PointOnObject", 27, 2, -1),
    Sketcher.Constraint("Horizontal", 14, 2, 17, 2),
    Sketcher.Constraint("Horizontal", 12, 2, 19, 2),
    Sketcher.Constraint("Horizontal", 10, 2, 21, 2),
    Sketcher.Constraint("Horizontal", 8, 2, 23, 2),
    Sketcher.Constraint("Horizontal", 0, 2, 31, 2),
    Sketcher.Constraint("Vertical", 3, 2, 10, 2),
    Sketcher.Constraint("Vertical", 7, 2, 14, 2),
    Sketcher.Constraint("Vertical", 19, 2, 22, 2),
    Sketcher.Constraint("Vertical", 17, 2, 24, 2),
    Sketcher.Constraint("Vertical", 21, 2, 28, 2),
    Sketcher.Constraint("Vertical", 25, 2, 32, 2),
    Sketcher.Constraint("Vertical", 15, 2, 34, 2),
    Sketcher.Constraint("Equal", 14, 18),
    Sketcher.Constraint("Equal", 12, 20),
    Sketcher.Constraint("Equal", 1, 5),
    Sketcher.Constraint("Equal", 5, 9),
    Sketcher.Constraint("Equal", 3, 11),
    Sketcher.Constraint("Equal", 17, 33),
    Sketcher.Constraint("DistanceX", 2, 1, 2, 2, Q("1.2 in")),
    Sketcher.Constraint("DistanceY", 0, 2, -1, 1, Q("1 in")),
    Sketcher.Constraint("DistanceX", 0, 1, 0, 2, Q("0.07 in")),
    Sketcher.Constraint("DistanceX", 16, 1, 16, 2, Q("2.74 in")),
    Sketcher.Constraint("DistanceY", 1, 2, 1, 1, Q("0.25 in")),
    Sketcher.Constraint("DistanceY", 15, 1, 15, 2, Q("0.32 in")),
])
pad12 = doc.addObject("PartDesign::Pad", "Pad011")
body.addObject(pad12)
pad12.Profile = sketch14
pad12.Length = Q("0.2 in")
pad12.Reversed = True

doc.recompute()
